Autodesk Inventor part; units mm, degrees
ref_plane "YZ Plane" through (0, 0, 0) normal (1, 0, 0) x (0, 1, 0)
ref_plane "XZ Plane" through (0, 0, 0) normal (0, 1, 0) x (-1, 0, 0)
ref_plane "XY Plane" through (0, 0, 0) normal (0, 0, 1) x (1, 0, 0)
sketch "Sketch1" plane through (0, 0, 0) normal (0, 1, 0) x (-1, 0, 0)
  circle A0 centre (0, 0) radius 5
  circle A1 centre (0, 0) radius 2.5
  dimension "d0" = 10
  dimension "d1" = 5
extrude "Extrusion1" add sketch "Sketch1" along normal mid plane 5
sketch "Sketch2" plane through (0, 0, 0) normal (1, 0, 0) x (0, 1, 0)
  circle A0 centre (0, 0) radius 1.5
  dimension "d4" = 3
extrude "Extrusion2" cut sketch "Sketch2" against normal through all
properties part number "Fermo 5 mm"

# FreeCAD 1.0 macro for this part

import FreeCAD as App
import Part
import Sketcher
Q = App.Units.Quantity

doc = App.newDocument("Part")
body = doc.addObject("PartDesign::Body", "Body")

# Sketch on XZ plane
sketch1 = body.newObject("Sketcher::SketchObject", "Sketch")
sketch1.AttachmentSupport = (doc.getObject("XZ_Plane"), [""])
sketch1.MapMode = "FlatFace"
sketch1.addGeometry(Part.Circle(App.Vector(0, 0, 0), App.Vector(0, 0, 1), 5), False)
sketch1.addGeometry(Part.Circle(App.Vector(0, 0, 0), App.Vector(0, 0, 1), 2.5), False)
sketch1.addConstraint(Sketcher.Constraint("Coincident", 0, 3, -1, 1))
sketch1.addConstraint(Sketcher.Constraint("Coincident", 1, 3, -1, 1))
sketch1.addConstraint(Sketcher.Constraint("Diameter", 0, Q("10 mm")))
sketch1.addConstraint(Sketcher.Constraint("Diameter", 1, Q("5 mm")))
pad1 = body.newObject("PartDesign::Pad", "Pad")
pad1.Profile = sketch1
pad1.Length = 5
pad1.Midplane = True

# Sketch on YZ plane
sketch2 = body.newObject("Sketcher::SketchObject", "Sketch001")
sketch2.AttachmentSupport = (doc.getObject("YZ_Plane"), [""])
sketch2.MapMode = "FlatFace"
sketch2.addGeometry(Part.Circle(App.Vector(0, 0, 0), App.Vector(0, 0, 1), 1.5), False)
sketch2.addConstraint(Sketcher.Constraint("Coincident", 0, 3, -1, 1))
sketch2.addConstraint(Sketcher.Constraint("Diameter", 0, Q("3 mm")))
pocket1 = body.newObject("PartDesign::Pocket", "Pocket")
pocket1.Profile = sketch2
pocket1.Type = "ThroughAll"

doc.recompute()
